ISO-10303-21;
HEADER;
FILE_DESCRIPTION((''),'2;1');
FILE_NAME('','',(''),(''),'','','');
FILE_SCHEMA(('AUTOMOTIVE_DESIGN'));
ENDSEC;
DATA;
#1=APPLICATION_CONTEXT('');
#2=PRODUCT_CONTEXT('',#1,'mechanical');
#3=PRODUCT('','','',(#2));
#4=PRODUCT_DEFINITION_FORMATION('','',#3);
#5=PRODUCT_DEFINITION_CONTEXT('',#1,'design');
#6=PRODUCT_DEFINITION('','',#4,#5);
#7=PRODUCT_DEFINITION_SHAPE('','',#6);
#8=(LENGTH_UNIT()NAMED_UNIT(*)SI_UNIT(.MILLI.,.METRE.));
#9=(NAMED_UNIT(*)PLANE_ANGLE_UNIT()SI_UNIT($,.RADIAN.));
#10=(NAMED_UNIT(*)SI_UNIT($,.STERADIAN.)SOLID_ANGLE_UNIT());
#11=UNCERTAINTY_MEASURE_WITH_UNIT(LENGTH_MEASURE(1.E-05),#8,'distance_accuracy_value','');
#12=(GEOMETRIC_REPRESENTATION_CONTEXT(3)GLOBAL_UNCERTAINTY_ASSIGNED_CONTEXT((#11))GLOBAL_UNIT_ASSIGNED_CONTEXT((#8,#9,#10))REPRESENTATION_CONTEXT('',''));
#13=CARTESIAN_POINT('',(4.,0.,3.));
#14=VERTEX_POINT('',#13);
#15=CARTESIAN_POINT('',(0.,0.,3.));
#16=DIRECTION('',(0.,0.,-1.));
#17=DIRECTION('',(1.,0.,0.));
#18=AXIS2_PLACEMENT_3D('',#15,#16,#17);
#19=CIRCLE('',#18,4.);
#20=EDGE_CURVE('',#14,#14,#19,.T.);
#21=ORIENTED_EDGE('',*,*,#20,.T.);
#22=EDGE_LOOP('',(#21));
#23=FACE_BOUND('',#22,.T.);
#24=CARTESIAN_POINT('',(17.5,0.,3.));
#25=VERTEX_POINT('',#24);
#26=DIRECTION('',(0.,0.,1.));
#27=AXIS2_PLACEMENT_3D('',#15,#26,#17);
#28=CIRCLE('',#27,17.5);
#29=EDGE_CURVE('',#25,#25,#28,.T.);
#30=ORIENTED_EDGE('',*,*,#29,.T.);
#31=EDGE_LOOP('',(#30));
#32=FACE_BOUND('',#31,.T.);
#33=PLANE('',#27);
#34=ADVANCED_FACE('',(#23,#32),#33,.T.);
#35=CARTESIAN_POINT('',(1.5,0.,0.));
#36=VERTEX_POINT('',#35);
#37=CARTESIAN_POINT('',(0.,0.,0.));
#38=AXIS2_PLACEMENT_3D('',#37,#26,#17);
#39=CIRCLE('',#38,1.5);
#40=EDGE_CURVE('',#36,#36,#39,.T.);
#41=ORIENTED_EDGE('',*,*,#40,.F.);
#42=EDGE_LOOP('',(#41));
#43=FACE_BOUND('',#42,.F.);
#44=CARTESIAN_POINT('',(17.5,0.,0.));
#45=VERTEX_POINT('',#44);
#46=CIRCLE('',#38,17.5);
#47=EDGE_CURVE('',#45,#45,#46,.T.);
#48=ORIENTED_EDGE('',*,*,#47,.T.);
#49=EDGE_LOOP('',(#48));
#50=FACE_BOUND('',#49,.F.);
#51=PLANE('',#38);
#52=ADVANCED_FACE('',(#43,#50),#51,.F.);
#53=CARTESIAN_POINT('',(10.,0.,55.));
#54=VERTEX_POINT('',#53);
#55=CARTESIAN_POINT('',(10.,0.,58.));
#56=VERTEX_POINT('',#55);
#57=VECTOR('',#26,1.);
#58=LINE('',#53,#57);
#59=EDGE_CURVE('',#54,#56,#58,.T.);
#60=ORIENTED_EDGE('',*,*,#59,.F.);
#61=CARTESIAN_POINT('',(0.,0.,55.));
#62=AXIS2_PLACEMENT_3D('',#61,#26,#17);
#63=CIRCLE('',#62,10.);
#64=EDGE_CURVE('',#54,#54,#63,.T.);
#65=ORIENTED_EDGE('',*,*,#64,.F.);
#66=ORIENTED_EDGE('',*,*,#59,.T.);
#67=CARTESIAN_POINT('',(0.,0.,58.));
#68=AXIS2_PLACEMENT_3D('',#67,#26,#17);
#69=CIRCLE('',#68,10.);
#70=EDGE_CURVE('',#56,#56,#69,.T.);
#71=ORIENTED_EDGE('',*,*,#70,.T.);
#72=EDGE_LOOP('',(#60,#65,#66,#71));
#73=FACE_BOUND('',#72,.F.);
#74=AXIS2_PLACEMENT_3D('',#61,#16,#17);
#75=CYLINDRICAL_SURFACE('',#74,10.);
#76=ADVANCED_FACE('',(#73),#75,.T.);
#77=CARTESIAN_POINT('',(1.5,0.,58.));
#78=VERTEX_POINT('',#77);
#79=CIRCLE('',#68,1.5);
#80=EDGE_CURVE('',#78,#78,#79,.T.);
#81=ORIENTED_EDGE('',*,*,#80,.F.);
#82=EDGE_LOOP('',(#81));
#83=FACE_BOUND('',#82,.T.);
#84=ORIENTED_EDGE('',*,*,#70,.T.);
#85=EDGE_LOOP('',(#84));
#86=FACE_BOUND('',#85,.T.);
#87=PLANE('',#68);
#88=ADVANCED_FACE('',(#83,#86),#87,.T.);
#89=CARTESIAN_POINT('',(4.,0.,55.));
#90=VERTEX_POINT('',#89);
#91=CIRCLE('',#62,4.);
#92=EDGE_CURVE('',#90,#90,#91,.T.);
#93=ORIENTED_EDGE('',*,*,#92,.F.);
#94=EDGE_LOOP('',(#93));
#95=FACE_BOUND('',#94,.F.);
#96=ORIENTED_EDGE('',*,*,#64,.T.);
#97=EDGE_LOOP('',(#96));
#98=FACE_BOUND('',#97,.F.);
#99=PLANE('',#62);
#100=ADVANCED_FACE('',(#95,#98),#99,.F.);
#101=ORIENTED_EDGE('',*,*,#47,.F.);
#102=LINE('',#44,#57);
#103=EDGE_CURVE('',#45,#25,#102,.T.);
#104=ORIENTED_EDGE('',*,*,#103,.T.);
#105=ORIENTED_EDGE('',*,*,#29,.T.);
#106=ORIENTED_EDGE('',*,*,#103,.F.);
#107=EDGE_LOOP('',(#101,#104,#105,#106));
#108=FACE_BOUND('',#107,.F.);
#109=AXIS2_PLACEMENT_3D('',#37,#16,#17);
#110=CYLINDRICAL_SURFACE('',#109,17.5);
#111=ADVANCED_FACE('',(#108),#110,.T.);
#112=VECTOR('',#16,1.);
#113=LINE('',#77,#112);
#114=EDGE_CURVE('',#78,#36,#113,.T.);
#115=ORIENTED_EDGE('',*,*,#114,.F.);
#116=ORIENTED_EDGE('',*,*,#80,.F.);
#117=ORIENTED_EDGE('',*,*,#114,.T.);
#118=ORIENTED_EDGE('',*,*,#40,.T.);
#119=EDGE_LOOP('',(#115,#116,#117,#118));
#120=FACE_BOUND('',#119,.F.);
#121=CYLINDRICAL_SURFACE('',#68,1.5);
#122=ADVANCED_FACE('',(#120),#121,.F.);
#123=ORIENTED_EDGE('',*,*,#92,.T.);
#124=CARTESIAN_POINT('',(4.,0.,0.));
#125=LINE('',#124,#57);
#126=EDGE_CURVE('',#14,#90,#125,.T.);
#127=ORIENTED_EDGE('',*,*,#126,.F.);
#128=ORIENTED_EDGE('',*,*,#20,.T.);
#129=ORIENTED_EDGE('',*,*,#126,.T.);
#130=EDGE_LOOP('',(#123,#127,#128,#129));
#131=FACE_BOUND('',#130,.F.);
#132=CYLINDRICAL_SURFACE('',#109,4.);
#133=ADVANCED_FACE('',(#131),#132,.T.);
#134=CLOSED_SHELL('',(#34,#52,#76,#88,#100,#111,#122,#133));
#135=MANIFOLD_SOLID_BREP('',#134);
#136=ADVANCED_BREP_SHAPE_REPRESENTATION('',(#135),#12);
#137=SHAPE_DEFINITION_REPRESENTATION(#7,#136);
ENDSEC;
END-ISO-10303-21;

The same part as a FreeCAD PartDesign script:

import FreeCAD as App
import Part
import Sketcher

V = App.Vector
Q = App.Units.Quantity

doc = App.newDocument("Part")
body = doc.addObject("PartDesign::Body", "Body")

sketch1 = body.newObject("Sketcher::SketchObject", "Sketch")
sketch1.AttachmentSupport = (doc.getObject("XY_Plane"), [""])
sketch1.MapMode = "FlatFace"
sketch1.addGeometry(Part.Circle(V(0, 0, 0), V(0, 0, 1), 18), False)
sketch1.addConstraint(Sketcher.Constraint("Coincident", 0, 3, -1, 1))
sketch1.addConstraint(Sketcher.Constraint("Diameter", 0, Q("35 mm")))
pad1 = body.newObject("PartDesign::Pad", "Pad")
pad1.Profile = sketch1
pad1.Length = 3

sketch2 = body.newObject("Sketcher::SketchObject", "Sketch001")
sketch2.AttachmentSupport = (doc.getObject("XY_Plane"), [""])
sketch2.MapMode = "FlatFace"
sketch2.addGeometry(Part.Circle(V(0, 0, 0), V(0, 0, 1), 4), False)
sketch2.addConstraint(Sketcher.Constraint("Coincident", 0, 3, -1, 1))
sketch2.addConstraint(Sketcher.Constraint("Diameter", 0, Q("8 mm")))
pad2 = body.newObject("PartDesign::Pad", "Pad001")
pad2.Profile = sketch2
pad2.Length = 55

sketch3 = body.newObject("Sketcher::SketchObject", "Sketch002")
sketch3.AttachmentSupport = (doc.getObject("XY_Plane"), [""])
sketch3.MapMode = "FlatFace"
sketch3.AttachmentOffset = App.Placement(V(0, 0, 55), App.Rotation())
sketch3.addGeometry(Part.Circle(V(0, 0, 0), V(0, 0, 1), 10), False)
sketch3.addConstraint(Sketcher.Constraint("Coincident", 0, 3, -1, 1))
sketch3.addConstraint(Sketcher.Constraint("Diameter", 0, Q("20 mm")))
pad3 = body.newObject("PartDesign::Pad", "Pad002")
pad3.Profile = sketch3
pad3.Length = 3

sketch4 = body.newObject("Sketcher::SketchObject", "Sketch003")
sketch4.AttachmentSupport = (doc.getObject("XY_Plane"), [""])
sketch4.MapMode = "FlatFace"
sketch4.AttachmentOffset = App.Placement(V(0, 0, 58), App.Rotation())
sketch4.addGeometry(Part.Circle(V(0, 0, 0), V(0, 0, 1), 1.5), False)
sketch4.addConstraint(Sketcher.Constraint("Coincident", 0, 3, -1, 1))
sketch4.addConstraint(Sketcher.Constraint("Diameter", 0, Q("3 mm")))
pocket1 = body.newObject("PartDesign::Pocket", "Pocket")
pocket1.Profile = sketch4
pocket1.Type = "ThroughAll"

doc.recompute()
